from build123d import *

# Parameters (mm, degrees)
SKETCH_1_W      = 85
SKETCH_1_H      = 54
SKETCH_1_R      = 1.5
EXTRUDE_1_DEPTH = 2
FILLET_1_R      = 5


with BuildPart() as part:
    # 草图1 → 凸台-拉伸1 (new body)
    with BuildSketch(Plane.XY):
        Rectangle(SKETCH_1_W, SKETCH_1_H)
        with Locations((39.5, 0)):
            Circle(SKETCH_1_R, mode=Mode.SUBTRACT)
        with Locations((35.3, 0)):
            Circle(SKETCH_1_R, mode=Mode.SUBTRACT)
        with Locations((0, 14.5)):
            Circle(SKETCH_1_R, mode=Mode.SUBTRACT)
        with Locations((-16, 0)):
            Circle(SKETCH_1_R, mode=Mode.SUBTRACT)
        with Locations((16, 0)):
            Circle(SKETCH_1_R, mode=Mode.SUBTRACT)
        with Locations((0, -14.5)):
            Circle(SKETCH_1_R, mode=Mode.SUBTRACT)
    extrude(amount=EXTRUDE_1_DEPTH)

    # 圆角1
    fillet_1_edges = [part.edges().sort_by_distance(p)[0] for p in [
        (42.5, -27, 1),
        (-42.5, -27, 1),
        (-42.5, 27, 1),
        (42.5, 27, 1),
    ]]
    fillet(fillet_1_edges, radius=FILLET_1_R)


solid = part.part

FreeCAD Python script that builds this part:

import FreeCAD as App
import Part
import Sketcher
from FreeCAD import Vector


def edges_at(feature, points):
    """Names of the edges that pass closest to the given points."""
    edges = feature.Shape.Edges
    near = lambda p: min(range(len(edges)), key=lambda i: edges[i].distToShape(Part.Vertex(*p))[0])
    return sorted({f"Edge{near(p) + 1}" for p in points})


def add_polygon(sketch, points):
    """Adds a closed chain of lines whose ends are joined by coincident constraints."""
    first, n = sketch.GeometryCount, len(points)
    for a, b in zip(points, points[1:] + points[:1]):
        sketch.addGeometry(Part.LineSegment(App.Vector(*a, 0), App.Vector(*b, 0)), False)
    for i in range(n):
        sketch.addConstraint(Sketcher.Constraint("Coincident", first + i, 2, first + (i + 1) % n, 1))

doc = App.newDocument("Part")
body = doc.addObject("PartDesign::Body", "Body")

sketch1 = body.newObject("Sketcher::SketchObject", "Sketch")
sketch1.AttachmentSupport = (doc.getObject("XY_Plane"), [""])
sketch1.MapMode = "FlatFace"
add_polygon(sketch1, [(-42.5, 27), (-42.5, -27), (42.5, -27), (42.5, 27)])
sketch1.addGeometry(Part.Circle(Vector(0, -14.5, 0), Vector(0, 0, 1), 1.5), False)
sketch1.addGeometry(Part.Circle(Vector(-16, 0, 0), Vector(0, 0, 1), 1.5), False)
sketch1.addGeometry(Part.Circle(Vector(0, 14.5, 0), Vector(0, 0, 1), 1.5), False)
sketch1.addGeometry(Part.Circle(Vector(16, 0, 0), Vector(0, 0, 1), 1.5), False)
sketch1.addGeometry(Part.Circle(Vector(35.3, 0, 0), Vector(0, 0, 1), 1.5), False)
sketch1.addGeometry(Part.Circle(Vector(39.5, 0, 0), Vector(0, 0, 1), 1.5), False)
sketch1.addConstraint(Sketcher.Constraint("Vertical", 0))
sketch1.addConstraint(Sketcher.Constraint("Horizontal", 1))
sketch1.addConstraint(Sketcher.Constraint("Vertical", 2))
sketch1.addConstraint(Sketcher.Constraint("Horizontal", 3))
sketch1.addConstraint(Sketcher.Constraint("Equal", 4, 5))
sketch1.addConstraint(Sketcher.Constraint("Equal", 5, 6))
sketch1.addConstraint(Sketcher.Constraint("Equal", 6, 7))
sketch1.addConstraint(Sketcher.Constraint("Equal", 7, 8))
sketch1.addConstraint(Sketcher.Constraint("Equal", 8, 9))
sketch1.addConstraint(Sketcher.Constraint("Symmetric", 4, 3, 6, 3, -1, 1))
sketch1.addConstraint(Sketcher.Constraint("Symmetric", 5, 3, 7, 3, -1, 1))
sketch1.addConstraint(Sketcher.Constraint("Symmetric", 0, 2, 2, 2, -1, 1))
sketch1.addConstraint(Sketcher.Constraint("PointOnObject", 4, 3, -2))
sketch1.addConstraint(Sketcher.Constraint("PointOnObject", 5, 3, -1))
sketch1.addConstraint(Sketcher.Constraint("PointOnObject", 8, 3, -1))
sketch1.addConstraint(Sketcher.Constraint("PointOnObject", 9, 3, -1))
sketch1.addConstraint(Sketcher.Constraint("Diameter", 4, 3.0))
sketch1.addConstraint(Sketcher.Constraint("DistanceX", 1, 1, 1, 2, 85.0))
sketch1.addConstraint(Sketcher.Constraint("DistanceY", 0, 2, 0, 1, 54.0))
sketch1.addConstraint(Sketcher.Constraint("DistanceX", 5, 3, -1, 1, 16.0))
sketch1.addConstraint(Sketcher.Constraint("DistanceY", 4, 3, 6, 3, 29.0))
sketch1.addConstraint(Sketcher.Constraint("DistanceX", 9, 3, 1, 2, 3.0))
sketch1.addConstraint(Sketcher.Constraint("DistanceX", -1, 1, 8, 3, 35.3))
pad1 = body.newObject("PartDesign::Pad", "Pad")
pad1.Profile = sketch1
pad1.Length = 2
doc.recompute()

fillet = body.newObject("PartDesign::Fillet", "Fillet")
fillet.Base = (pad1, edges_at(pad1, [
    (42.5, -27, 1),
    (-42.5, -27, 1),
    (-42.5, 27, 1),
    (42.5, 27, 1),
]))
fillet.Radius = 5

doc.recompute()
